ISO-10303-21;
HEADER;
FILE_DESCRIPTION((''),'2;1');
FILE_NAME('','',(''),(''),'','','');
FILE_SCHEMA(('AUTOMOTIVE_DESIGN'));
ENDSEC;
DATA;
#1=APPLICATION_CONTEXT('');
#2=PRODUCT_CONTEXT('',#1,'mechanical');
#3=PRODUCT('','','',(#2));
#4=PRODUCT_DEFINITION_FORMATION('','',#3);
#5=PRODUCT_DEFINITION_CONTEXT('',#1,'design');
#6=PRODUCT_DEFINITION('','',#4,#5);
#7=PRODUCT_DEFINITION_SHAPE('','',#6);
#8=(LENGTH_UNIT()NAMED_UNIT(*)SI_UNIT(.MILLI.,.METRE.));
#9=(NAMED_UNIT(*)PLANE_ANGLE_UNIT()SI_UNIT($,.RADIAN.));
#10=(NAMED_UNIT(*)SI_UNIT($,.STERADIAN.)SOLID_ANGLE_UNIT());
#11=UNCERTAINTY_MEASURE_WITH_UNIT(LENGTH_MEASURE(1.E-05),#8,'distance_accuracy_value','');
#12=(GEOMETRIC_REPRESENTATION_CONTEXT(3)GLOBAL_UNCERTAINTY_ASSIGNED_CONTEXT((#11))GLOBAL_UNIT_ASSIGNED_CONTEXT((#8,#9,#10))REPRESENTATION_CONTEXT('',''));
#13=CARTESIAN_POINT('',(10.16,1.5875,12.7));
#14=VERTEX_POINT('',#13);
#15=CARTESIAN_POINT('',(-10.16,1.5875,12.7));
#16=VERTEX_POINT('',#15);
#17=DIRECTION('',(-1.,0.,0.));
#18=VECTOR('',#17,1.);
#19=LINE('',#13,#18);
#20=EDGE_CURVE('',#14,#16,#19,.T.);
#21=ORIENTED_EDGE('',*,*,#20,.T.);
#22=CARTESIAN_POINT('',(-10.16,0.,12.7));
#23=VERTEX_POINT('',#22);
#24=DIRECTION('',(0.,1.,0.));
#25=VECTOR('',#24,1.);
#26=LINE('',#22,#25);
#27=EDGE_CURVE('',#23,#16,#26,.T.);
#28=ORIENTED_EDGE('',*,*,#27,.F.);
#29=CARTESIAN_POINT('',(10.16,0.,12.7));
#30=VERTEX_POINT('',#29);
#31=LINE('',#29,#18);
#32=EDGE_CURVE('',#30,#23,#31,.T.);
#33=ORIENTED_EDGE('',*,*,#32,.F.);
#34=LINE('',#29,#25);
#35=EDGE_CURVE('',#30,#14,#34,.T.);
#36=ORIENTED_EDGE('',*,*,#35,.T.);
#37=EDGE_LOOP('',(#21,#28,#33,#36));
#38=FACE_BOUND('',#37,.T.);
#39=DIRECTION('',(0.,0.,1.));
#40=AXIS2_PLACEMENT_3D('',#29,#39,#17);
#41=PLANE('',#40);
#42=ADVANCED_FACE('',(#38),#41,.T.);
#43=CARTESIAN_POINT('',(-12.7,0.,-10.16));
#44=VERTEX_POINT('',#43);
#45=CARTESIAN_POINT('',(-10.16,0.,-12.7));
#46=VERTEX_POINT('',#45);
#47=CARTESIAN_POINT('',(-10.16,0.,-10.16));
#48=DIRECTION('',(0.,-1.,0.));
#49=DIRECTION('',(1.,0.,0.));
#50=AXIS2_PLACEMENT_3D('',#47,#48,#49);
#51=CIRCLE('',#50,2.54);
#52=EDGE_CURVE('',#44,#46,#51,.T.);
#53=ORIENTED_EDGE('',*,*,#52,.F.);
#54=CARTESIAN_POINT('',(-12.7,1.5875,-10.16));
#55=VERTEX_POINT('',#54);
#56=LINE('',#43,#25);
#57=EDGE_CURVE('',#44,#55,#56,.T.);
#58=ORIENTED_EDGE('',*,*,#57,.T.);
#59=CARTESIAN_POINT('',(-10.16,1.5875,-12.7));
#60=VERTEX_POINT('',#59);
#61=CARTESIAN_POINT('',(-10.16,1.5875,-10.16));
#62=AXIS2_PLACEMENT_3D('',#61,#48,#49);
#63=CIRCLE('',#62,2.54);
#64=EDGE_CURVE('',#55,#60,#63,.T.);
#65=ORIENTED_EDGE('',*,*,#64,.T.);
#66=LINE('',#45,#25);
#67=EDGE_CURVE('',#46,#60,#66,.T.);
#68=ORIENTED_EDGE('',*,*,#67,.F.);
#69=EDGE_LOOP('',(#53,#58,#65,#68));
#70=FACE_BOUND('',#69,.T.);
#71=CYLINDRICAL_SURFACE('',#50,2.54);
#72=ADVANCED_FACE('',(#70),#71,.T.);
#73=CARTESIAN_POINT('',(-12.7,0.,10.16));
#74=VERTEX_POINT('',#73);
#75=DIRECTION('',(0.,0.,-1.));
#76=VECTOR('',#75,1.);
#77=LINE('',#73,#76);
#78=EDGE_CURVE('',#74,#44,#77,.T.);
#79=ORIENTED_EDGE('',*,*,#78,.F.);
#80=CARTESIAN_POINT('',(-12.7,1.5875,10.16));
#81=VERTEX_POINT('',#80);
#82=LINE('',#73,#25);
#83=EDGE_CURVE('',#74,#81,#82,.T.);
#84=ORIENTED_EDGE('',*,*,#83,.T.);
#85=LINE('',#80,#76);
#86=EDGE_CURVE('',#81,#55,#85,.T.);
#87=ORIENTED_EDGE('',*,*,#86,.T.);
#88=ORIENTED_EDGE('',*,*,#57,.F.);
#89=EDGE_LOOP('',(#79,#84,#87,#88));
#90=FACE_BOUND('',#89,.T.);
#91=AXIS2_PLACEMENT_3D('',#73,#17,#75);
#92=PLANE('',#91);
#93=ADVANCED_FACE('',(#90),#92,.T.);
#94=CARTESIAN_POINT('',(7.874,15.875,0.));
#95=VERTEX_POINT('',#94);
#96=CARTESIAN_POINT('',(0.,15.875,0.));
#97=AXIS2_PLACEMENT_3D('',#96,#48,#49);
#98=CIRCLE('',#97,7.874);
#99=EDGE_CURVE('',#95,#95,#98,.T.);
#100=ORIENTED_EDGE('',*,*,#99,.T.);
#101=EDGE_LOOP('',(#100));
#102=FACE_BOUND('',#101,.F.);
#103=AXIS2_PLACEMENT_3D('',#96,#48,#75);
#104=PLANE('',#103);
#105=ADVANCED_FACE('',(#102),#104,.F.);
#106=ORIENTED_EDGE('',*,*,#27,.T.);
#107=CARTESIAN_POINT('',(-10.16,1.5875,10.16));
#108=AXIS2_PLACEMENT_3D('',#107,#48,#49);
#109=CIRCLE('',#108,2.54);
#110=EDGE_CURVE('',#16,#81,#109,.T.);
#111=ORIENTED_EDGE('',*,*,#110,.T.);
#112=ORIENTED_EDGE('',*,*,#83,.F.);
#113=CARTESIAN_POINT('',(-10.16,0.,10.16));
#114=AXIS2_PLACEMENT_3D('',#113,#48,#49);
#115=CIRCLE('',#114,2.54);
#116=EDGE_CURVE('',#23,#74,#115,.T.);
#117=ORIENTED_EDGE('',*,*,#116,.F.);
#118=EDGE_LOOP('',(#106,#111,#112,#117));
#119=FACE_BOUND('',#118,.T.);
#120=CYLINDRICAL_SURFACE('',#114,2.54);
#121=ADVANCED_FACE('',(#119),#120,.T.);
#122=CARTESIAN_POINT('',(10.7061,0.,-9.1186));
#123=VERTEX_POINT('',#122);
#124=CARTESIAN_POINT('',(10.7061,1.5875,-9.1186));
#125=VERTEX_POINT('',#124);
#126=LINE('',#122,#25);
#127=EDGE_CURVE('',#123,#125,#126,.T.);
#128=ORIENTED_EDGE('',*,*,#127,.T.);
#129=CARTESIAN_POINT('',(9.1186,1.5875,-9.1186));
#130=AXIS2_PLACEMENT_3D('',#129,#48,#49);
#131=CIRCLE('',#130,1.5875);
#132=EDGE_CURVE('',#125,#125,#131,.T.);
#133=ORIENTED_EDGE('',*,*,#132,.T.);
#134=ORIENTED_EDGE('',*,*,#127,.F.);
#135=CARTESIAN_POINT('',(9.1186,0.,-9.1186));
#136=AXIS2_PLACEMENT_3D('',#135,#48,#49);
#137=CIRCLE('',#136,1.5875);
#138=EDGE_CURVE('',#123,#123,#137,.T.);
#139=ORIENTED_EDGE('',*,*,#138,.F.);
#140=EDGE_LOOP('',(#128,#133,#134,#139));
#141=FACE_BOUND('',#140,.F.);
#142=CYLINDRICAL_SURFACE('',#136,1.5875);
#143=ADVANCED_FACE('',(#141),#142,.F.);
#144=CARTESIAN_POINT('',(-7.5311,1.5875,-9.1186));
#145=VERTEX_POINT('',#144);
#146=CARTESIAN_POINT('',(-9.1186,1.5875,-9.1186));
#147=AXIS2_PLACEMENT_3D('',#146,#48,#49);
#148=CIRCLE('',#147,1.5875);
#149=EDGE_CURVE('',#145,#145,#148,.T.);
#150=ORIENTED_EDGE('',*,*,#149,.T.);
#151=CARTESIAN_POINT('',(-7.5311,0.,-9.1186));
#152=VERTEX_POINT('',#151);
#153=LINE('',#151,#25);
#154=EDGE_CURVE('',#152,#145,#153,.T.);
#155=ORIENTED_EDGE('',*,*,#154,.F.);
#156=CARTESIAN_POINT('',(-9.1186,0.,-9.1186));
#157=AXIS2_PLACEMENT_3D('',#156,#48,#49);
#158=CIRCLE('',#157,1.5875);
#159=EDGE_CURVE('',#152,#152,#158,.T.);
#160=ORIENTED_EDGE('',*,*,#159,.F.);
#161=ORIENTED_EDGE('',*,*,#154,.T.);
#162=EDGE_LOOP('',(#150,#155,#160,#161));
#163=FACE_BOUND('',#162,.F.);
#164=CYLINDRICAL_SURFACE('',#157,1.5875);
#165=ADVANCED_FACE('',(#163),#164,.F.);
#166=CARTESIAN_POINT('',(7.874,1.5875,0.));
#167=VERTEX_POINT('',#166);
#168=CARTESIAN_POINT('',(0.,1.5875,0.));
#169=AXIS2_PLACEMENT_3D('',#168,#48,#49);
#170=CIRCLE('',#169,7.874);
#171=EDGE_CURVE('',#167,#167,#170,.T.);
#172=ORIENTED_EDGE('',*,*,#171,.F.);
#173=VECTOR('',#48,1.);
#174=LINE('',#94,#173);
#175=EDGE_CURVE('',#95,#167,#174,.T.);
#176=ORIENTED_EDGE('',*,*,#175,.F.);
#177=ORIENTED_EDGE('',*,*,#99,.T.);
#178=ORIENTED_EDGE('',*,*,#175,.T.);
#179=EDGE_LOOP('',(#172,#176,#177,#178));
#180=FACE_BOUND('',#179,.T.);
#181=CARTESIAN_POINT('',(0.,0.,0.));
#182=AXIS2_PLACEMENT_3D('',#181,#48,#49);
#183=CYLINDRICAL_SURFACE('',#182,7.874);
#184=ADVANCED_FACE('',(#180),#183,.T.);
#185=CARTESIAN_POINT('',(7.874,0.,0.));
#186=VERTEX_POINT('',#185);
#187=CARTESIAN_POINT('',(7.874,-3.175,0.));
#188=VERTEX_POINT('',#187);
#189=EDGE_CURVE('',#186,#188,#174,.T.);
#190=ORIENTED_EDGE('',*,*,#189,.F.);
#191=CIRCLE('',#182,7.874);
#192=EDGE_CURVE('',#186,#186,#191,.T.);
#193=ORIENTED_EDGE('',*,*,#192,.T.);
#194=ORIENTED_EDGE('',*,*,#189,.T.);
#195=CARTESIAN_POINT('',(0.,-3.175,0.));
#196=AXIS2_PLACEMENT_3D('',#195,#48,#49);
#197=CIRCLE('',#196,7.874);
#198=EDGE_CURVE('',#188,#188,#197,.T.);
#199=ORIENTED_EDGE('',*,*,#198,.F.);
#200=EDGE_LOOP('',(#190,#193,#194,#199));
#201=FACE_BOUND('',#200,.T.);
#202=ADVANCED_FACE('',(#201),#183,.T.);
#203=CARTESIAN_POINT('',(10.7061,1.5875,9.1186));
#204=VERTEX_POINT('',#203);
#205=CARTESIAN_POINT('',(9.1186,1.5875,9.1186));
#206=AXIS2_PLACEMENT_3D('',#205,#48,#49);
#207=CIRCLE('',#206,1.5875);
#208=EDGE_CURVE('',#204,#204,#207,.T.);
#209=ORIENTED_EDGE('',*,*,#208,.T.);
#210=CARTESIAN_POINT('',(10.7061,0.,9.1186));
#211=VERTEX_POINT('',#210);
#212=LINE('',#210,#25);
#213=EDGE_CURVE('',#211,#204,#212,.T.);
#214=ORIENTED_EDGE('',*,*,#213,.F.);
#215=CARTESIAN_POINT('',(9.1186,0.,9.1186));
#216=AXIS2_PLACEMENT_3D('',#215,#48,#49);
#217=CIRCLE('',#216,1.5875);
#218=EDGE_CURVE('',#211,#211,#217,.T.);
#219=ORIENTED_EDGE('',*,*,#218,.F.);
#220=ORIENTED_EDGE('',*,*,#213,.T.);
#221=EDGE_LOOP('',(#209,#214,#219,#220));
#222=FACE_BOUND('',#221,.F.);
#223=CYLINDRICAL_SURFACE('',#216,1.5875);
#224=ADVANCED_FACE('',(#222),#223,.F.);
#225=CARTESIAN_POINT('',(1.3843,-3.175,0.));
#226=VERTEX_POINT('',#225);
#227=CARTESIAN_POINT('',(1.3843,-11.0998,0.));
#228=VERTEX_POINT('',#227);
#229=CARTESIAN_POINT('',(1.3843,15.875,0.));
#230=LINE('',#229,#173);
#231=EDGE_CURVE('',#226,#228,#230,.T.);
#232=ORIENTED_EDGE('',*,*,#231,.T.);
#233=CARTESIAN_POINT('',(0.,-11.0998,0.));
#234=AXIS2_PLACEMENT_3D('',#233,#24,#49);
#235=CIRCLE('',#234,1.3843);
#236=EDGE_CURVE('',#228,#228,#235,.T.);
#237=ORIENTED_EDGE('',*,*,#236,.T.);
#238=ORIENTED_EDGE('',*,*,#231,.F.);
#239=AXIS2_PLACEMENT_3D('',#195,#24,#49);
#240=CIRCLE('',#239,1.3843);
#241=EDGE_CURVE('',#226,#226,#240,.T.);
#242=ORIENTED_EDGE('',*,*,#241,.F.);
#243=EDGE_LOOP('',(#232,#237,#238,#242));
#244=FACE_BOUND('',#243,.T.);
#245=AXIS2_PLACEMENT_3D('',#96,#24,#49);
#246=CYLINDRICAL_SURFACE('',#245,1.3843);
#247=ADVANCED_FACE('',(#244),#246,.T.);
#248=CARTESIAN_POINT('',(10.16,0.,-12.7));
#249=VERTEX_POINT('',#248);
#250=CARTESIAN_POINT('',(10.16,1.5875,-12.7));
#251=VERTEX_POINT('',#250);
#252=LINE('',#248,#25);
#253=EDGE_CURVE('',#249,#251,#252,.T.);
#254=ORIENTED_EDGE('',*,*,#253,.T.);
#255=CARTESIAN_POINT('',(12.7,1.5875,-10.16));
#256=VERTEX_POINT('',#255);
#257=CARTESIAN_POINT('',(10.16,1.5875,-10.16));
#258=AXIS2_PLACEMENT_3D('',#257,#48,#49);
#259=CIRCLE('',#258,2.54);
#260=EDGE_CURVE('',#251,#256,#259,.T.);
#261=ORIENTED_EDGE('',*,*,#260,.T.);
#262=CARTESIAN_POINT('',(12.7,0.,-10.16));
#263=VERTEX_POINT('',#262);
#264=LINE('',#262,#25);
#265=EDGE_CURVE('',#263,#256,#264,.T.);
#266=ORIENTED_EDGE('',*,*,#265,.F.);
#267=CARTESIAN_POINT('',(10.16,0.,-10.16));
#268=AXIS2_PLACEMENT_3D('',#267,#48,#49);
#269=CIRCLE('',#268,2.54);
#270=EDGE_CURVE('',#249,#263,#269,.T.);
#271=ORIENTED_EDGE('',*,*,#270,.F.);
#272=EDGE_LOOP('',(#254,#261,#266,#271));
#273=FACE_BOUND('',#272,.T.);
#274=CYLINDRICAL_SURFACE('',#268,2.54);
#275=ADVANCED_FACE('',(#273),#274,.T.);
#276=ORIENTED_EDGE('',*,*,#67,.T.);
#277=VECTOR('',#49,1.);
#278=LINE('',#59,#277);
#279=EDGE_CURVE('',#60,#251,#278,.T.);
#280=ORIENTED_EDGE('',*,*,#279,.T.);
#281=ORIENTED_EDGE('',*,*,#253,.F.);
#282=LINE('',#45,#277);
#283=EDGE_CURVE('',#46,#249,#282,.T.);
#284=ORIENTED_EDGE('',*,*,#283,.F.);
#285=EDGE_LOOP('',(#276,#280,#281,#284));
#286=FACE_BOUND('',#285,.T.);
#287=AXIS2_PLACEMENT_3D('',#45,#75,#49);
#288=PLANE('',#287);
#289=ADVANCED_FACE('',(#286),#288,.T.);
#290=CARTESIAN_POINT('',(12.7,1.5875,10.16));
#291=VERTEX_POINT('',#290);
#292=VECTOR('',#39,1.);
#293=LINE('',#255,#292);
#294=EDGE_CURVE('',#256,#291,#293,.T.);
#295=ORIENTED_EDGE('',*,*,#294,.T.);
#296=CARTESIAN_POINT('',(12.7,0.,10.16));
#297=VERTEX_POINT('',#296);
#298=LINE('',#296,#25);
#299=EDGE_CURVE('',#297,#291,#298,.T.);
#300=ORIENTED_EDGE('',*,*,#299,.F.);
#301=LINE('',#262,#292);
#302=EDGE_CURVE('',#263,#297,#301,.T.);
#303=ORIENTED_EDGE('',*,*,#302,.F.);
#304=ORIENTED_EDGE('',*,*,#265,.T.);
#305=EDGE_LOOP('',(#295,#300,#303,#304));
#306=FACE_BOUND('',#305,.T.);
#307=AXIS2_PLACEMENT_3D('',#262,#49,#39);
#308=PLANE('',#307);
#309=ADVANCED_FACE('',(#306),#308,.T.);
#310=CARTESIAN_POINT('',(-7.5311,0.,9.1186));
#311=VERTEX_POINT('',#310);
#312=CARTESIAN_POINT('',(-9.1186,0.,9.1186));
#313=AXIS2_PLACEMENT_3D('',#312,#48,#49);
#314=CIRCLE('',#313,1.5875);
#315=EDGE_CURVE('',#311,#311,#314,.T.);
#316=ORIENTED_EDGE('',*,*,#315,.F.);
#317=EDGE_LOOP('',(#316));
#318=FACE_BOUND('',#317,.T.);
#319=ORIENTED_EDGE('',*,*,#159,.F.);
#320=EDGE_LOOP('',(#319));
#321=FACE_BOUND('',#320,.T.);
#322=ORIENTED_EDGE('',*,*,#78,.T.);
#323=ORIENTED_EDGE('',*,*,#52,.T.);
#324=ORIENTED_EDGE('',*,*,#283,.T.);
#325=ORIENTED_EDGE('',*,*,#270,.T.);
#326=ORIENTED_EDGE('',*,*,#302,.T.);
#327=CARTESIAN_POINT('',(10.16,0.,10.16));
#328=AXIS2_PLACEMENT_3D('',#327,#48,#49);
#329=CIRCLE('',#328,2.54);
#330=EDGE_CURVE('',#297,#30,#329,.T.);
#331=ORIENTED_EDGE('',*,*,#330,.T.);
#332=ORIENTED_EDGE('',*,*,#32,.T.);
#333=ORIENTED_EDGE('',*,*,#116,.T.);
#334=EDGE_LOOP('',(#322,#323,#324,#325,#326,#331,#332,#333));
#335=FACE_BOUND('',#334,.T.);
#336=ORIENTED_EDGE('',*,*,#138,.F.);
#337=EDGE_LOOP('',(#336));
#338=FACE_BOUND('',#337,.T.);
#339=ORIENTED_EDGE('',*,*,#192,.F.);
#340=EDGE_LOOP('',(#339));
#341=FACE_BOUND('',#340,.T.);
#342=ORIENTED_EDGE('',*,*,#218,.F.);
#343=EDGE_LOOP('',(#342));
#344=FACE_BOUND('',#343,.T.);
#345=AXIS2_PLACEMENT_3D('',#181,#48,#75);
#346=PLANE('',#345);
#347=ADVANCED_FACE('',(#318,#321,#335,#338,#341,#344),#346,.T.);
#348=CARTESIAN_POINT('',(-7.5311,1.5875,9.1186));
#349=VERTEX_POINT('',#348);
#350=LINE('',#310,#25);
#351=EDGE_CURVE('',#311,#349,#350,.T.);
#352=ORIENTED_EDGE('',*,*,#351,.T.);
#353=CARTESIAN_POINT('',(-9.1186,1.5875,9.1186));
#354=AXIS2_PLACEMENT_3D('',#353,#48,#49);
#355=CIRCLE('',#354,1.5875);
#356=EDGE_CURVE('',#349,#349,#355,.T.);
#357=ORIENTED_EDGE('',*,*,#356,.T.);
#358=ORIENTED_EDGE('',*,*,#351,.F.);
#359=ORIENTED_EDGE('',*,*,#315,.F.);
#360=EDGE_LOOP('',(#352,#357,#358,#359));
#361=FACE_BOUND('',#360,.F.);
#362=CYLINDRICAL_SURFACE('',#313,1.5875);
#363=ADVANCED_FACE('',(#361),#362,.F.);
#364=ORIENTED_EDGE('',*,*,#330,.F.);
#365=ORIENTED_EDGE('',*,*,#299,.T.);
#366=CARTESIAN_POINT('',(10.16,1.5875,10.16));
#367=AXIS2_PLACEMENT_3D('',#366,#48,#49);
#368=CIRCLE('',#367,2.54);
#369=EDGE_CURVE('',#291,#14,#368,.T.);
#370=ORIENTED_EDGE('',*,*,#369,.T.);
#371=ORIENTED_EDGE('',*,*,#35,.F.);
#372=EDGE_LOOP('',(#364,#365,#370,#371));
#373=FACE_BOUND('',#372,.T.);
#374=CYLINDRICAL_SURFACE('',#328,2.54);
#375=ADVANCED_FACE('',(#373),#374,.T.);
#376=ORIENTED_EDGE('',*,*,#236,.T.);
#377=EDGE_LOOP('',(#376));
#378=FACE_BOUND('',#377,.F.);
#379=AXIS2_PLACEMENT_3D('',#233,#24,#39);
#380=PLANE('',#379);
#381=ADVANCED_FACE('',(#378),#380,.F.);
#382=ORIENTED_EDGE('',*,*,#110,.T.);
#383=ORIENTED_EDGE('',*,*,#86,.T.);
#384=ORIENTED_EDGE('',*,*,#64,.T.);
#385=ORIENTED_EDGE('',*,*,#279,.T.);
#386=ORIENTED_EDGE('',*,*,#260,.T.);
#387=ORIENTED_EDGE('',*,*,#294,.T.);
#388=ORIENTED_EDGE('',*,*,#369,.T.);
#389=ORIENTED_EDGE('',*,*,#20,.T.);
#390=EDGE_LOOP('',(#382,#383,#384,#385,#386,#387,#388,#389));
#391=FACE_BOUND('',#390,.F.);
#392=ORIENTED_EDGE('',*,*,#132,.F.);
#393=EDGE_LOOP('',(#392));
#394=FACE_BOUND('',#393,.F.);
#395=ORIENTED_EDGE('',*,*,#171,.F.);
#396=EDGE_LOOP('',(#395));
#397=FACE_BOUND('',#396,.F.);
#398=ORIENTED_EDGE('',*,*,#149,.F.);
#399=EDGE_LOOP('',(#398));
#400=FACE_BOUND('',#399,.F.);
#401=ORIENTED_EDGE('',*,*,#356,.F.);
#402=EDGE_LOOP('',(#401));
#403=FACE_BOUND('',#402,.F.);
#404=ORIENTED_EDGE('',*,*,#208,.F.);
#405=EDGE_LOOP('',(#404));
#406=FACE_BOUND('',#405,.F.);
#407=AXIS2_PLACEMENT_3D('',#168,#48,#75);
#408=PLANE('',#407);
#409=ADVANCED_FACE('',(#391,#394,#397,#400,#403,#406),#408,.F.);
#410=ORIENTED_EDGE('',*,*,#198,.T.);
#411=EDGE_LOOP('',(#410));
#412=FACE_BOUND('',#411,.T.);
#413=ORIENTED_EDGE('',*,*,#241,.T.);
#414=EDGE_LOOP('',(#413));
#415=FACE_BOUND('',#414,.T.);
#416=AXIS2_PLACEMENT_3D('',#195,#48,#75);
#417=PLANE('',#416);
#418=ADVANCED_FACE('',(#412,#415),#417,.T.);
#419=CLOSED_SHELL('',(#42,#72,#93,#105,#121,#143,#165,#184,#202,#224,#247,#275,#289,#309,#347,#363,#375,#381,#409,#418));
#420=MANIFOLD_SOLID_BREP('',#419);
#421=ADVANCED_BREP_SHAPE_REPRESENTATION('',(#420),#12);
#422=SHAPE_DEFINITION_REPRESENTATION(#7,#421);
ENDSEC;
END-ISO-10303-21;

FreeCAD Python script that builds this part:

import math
import FreeCAD as App
import Part
import Sketcher

V = App.Vector
Q = App.Units.Quantity

doc = App.newDocument("Part")
body = doc.addObject("PartDesign::Body", "Body")

# Sketch on XZ plane
sketch1 = doc.addObject("Sketcher::SketchObject", "Sketch")
body.addObject(sketch1)
sketch1.AttachmentSupport = (doc.XZ_Plane, [""])
sketch1.MapMode = "FlatFace"
sketch1.addGeometry(Part.ArcOfCircle(Part.Circle(V(10.2, 10.2, 0), V(0, 0, 1), 2.5), math.radians(0), math.radians(90)), False)
sketch1.addGeometry(Part.LineSegment(V(10.2, 12.7, 0), V(-10.2, 12.7, 0)), False)
sketch1.addGeometry(Part.ArcOfCircle(Part.Circle(V(-10.2, 10.2, 0), V(0, 0, 1), 2.5), math.radians(90), math.radians(180)), False)
sketch1.addGeometry(Part.LineSegment(V(-12.7, 10.2, 0), V(-12.7, -10.2, 0)), False)
sketch1.addGeometry(Part.ArcOfCircle(Part.Circle(V(-10.2, -10.2, 0), V(0, 0, 1), 2.5), math.radians(180), math.radians(270)), False)
sketch1.addGeometry(Part.LineSegment(V(-10.2, -12.7, 0), V(10.2, -12.7, 0)), False)
sketch1.addGeometry(Part.ArcOfCircle(Part.Circle(V(10.2, -10.2, 0), V(0, 0, 1), 2.5), math.radians(-90), math.radians(0)), False)
sketch1.addGeometry(Part.LineSegment(V(12.7, -10.2, 0), V(12.7, 10.2, 0)), False)
sketch1.addConstraint(Sketcher.Constraint("Tangent", 0, 2, 1, 1))
sketch1.addConstraint(Sketcher.Constraint("Tangent", 1, 2, 2, 1))
sketch1.addConstraint(Sketcher.Constraint("Tangent", 2, 2, 3, 1))
sketch1.addConstraint(Sketcher.Constraint("Tangent", 3, 2, 4, 1))
sketch1.addConstraint(Sketcher.Constraint("Tangent", 4, 2, 5, 1))
sketch1.addConstraint(Sketcher.Constraint("Tangent", 5, 2, 6, 1))
sketch1.addConstraint(Sketcher.Constraint("Tangent", 6, 2, 7, 1))
sketch1.addConstraint(Sketcher.Constraint("Tangent", 7, 2, 0, 1))
sketch1.addConstraint(Sketcher.Constraint("Horizontal", 1))
sketch1.addConstraint(Sketcher.Constraint("Vertical", 3))
sketch1.addConstraint(Sketcher.Constraint("Horizontal", 5))
sketch1.addConstraint(Sketcher.Constraint("Vertical", 7))
sketch1.addConstraint(Sketcher.Constraint("Equal", 0, 2))
sketch1.addConstraint(Sketcher.Constraint("Equal", 2, 4))
sketch1.addConstraint(Sketcher.Constraint("Equal", 4, 6))
sketch1.addConstraint(Sketcher.Constraint("Symmetric", 0, 3, 4, 3, -1, 1))
sketch1.addConstraint(Sketcher.Constraint("Equal", 5, 3))
sketch1.addConstraint(Sketcher.Constraint("Radius", 0, Q("0.1 in")))
sketch1.addConstraint(Sketcher.Constraint("DistanceX", 1, 2, 1, 1, Q("0.8 in")))
pad1 = doc.addObject("PartDesign::Pad", "Pad")
body.addObject(pad1)
pad1.Profile = sketch1
pad1.Length = Q("0.0625 in")
pad1.Reversed = True

# Sketch on XZ plane
sketch2 = doc.addObject("Sketcher::SketchObject", "Sketch001")
body.addObject(sketch2)
sketch2.AttachmentSupport = (doc.XZ_Plane, [""])
sketch2.MapMode = "FlatFace"
sketch2.addGeometry(Part.Circle(V(-9.1, 9.1, 0), V(0, 0, 1), 1.6), False)
sketch2.addGeometry(Part.Circle(V(9.1, 9.1, 0), V(0, 0, 1), 1.6), False)
sketch2.addGeometry(Part.Circle(V(9.1, -9.1, 0), V(0, 0, 1), 1.6), False)
sketch2.addGeometry(Part.Circle(V(-9.1, -9.1, 0), V(0, 0, 1), 1.6), False)
sketch2.addConstraint(Sketcher.Constraint("Equal", 0, 1))
sketch2.addConstraint(Sketcher.Constraint("Equal", 1, 2))
sketch2.addConstraint(Sketcher.Constraint("Equal", 2, 3))
sketch2.addConstraint(Sketcher.Constraint("Symmetric", 0, 3, 2, 3, -1, 1))
sketch2.addConstraint(Sketcher.Constraint("Symmetric", 1, 3, 3, 3, -1, 1))
sketch2.addConstraint(Sketcher.Constraint("Symmetric", 0, 3, 1, 3, -2))
sketch2.addConstraint(Sketcher.Constraint("Diameter", 0, Q("0.125 in")))
sketch2.addConstraint(Sketcher.Constraint("DistanceX", 0, 3, -1, 1, Q("0.359 in")))
sketch2.addConstraint(Sketcher.Constraint("DistanceY", -1, 1, 0, 3, Q("0.359 in")))
pocket1 = doc.addObject("PartDesign::Pocket", "Pocket")
body.addObject(pocket1)
pocket1.Profile = sketch2
pocket1.Type = "ThroughAll"

# Sketch on XZ plane
sketch3 = doc.addObject("Sketcher::SketchObject", "Sketch002")
body.addObject(sketch3)
sketch3.AttachmentSupport = (doc.XZ_Plane, [""])
sketch3.MapMode = "FlatFace"
sketch3.addGeometry(Part.Circle(V(0, 0, 0), V(0, 0, 1), 8), False)
sketch3.addConstraint(Sketcher.Constraint("Coincident", 0, 3, -1, 1))
sketch3.addConstraint(Sketcher.Constraint("Diameter", 0, Q("0.62 in")))
pad2 = doc.addObject("PartDesign::Pad", "Pad001")
body.addObject(pad2)
pad2.Profile = sketch3
pad2.Type = "TwoLengths"
pad2.Length = Q("0.625 in")
pad2.Length2 = Q("0.125 in")
pad2.Reversed = True

# Sketch on XZ plane
sketch4 = doc.addObject("Sketcher::SketchObject", "Sketch003")
body.addObject(sketch4)
sketch4.AttachmentSupport = (doc.XZ_Plane, [""])
sketch4.MapMode = "FlatFace"
sketch4.AttachmentOffset = App.Placement(V(0, 0, -0.625 * 25.4), App.Rotation())
sketch4.addGeometry(Part.Circle(V(0, 0, 0), V(0, 0, 1), 1.4), False)
sketch4.addConstraint(Sketcher.Constraint("Coincident", 0, 3, -1, 1))
sketch4.addConstraint(Sketcher.Constraint("Diameter", 0, Q("0.109 in")))
pad3 = doc.addObject("PartDesign::Pad", "Pad002")
body.addObject(pad3)
pad3.Profile = sketch4
pad3.Length = Q("1.062 in")

doc.recompute()
